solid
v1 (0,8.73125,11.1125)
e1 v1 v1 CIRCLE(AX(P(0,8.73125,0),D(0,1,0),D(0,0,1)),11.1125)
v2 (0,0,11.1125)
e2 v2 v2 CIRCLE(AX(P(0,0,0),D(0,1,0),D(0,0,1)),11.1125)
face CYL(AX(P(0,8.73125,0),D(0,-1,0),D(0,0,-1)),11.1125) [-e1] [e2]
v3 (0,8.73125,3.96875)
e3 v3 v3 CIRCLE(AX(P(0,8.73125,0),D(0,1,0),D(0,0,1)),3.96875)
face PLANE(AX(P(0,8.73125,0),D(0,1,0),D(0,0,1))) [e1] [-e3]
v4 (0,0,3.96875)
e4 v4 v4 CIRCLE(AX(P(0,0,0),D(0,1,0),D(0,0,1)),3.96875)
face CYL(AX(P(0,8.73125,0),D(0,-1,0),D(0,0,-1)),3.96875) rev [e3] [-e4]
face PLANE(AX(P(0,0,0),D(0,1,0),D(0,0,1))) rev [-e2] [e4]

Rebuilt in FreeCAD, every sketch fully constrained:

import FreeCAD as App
import Part
import Sketcher
from FreeCAD import Vector
Q = App.Units.Quantity

doc = App.newDocument("Part")
body = doc.addObject("PartDesign::Body", "Body")

# Sketch on XZ plane
sketch1 = body.newObject("Sketcher::SketchObject", "Sketch")
sketch1.AttachmentSupport = (doc.getObject("XZ_Plane"), [""])
sketch1.MapMode = "FlatFace"
sketch1.addGeometry(Part.Circle(Vector(0, 0, 0), Vector(0, 0, 1), 11.1125), False)
sketch1.addGeometry(Part.Circle(Vector(0, 0, 0), Vector(0, 0, 1), 3.96875), False)
sketch1.addConstraint(Sketcher.Constraint("Coincident", 0, 3, -1, 1))
sketch1.addConstraint(Sketcher.Constraint("Coincident", 1, 3, -1, 1))
sketch1.addConstraint(Sketcher.Constraint("Diameter", 0, Q("0.875 in")))
sketch1.addConstraint(Sketcher.Constraint("Diameter", 1, Q("0.3125 in")))
pad1 = body.newObject("PartDesign::Pad", "Pad")
pad1.Profile = sketch1
pad1.Length = Q("0.34375 in")
pad1.Reversed = True

doc.recompute()
